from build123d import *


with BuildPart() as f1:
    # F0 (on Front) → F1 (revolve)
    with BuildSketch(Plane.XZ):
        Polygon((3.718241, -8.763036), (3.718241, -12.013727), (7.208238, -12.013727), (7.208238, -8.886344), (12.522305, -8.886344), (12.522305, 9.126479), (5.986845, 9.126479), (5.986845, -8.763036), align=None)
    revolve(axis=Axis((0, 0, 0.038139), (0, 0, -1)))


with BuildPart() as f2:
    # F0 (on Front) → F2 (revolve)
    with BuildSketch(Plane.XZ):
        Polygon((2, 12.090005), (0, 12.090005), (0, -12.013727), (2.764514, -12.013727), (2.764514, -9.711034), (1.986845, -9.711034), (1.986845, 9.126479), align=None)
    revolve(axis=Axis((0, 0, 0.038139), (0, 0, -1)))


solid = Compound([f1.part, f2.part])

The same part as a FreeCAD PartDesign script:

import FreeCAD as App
import Part
import Sketcher

V = App.Vector

doc = App.newDocument("Part")
body = doc.addObject("PartDesign::Body", "Body")

sketch1 = body.newObject("Sketcher::SketchObject", "Sketch")
sketch1.AttachmentSupport = (doc.getObject("XZ_Plane"), [""])
sketch1.MapMode = "FlatFace"
sketch1.addGeometry(Part.LineSegment(V(3.7, -8.8, 0), V(3.7, -12, 0)), False)
sketch1.addGeometry(Part.LineSegment(V(3.7, -12, 0), V(7.2, -12, 0)), False)
sketch1.addGeometry(Part.LineSegment(V(7.2, -12, 0), V(7.2, -8.9, 0)), False)
sketch1.addGeometry(Part.LineSegment(V(7.2, -8.9, 0), V(12.5, -8.9, 0)), False)
sketch1.addGeometry(Part.LineSegment(V(12.5, -8.9, 0), V(12.5, 9.1, 0)), False)
sketch1.addGeometry(Part.LineSegment(V(12.5, 9.1, 0), V(6, 9.1, 0)), False)
sketch1.addGeometry(Part.LineSegment(V(6, 9.1, 0), V(6, -8.8, 0)), False)
sketch1.addGeometry(Part.LineSegment(V(6, -8.8, 0), V(3.7, -8.8, 0)), False)
sketch1.addConstraint(Sketcher.Constraint("Coincident", 0, 2, 1, 1))
sketch1.addConstraint(Sketcher.Constraint("Coincident", 1, 2, 2, 1))
sketch1.addConstraint(Sketcher.Constraint("Coincident", 2, 2, 3, 1))
sketch1.addConstraint(Sketcher.Constraint("Coincident", 3, 2, 4, 1))
sketch1.addConstraint(Sketcher.Constraint("Coincident", 4, 2, 5, 1))
sketch1.addConstraint(Sketcher.Constraint("Coincident", 5, 2, 6, 1))
sketch1.addConstraint(Sketcher.Constraint("Coincident", 6, 2, 7, 1))
sketch1.addConstraint(Sketcher.Constraint("Coincident", 7, 2, 0, 1))
sketch1.addConstraint(Sketcher.Constraint("Vertical", 0))
sketch1.addConstraint(Sketcher.Constraint("Horizontal", 1))
sketch1.addConstraint(Sketcher.Constraint("Vertical", 2))
sketch1.addConstraint(Sketcher.Constraint("Horizontal", 3))
sketch1.addConstraint(Sketcher.Constraint("Vertical", 4))
sketch1.addConstraint(Sketcher.Constraint("Horizontal", 5))
sketch1.addConstraint(Sketcher.Constraint("Vertical", 6))
sketch1.addConstraint(Sketcher.Constraint("Horizontal", 7))
sketch1.addConstraint(Sketcher.Constraint("DistanceX", 5, 2, 5, 1, 6.53546))
sketch1.addConstraint(Sketcher.Constraint("DistanceY", 0, 2, 0, 1, 3.250691))
sketch1.addConstraint(Sketcher.Constraint("DistanceX", 1, 1, 1, 2, 3.489997))
sketch1.addConstraint(Sketcher.Constraint("DistanceX", 3, 1, 3, 2, 5.314067))
sketch1.addConstraint(Sketcher.Constraint("DistanceY", 2, 1, 2, 2, 3.127383))
sketch1.addConstraint(Sketcher.Constraint("DistanceY", 4, 1, 4, 2, 18.012823))
sketch1.addConstraint(Sketcher.Constraint("DistanceX", -1, 1, 0, 2, 3.718241))
sketch1.addConstraint(Sketcher.Constraint("DistanceY", -1, 1, 4, 2, 9.126479))
revolution = body.newObject("PartDesign::Revolution", "Revolution")
revolution.Profile = sketch1
revolution.ReferenceAxis = (sketch1, ["V_Axis"])
revolution.Angle = 360
body2 = doc.addObject("PartDesign::Body", "Body001")

sketch2 = body2.newObject("Sketcher::SketchObject", "Sketch001")
sketch2.AttachmentSupport = (doc.getObject("XZ_Plane001"), [""])
sketch2.MapMode = "FlatFace"
sketch2.addGeometry(Part.LineSegment(V(2, 12.1, 0), V(0, 12.1, 0)), False)
sketch2.addGeometry(Part.LineSegment(V(0, 12.1, 0), V(0, -12, 0)), False)
sketch2.addGeometry(Part.LineSegment(V(0, -12, 0), V(2.8, -12, 0)), False)
sketch2.addGeometry(Part.LineSegment(V(2.8, -12, 0), V(2.8, -9.7, 0)), False)
sketch2.addGeometry(Part.LineSegment(V(2.8, -9.7, 0), V(2, -9.7, 0)), False)
sketch2.addGeometry(Part.LineSegment(V(2, -9.7, 0), V(2, 9.1, 0)), False)
sketch2.addGeometry(Part.LineSegment(V(2, 9.1, 0), V(2, 12.1, 0)), False)
sketch2.addConstraint(Sketcher.Constraint("Coincident", 0, 2, 1, 1))
sketch2.addConstraint(Sketcher.Constraint("Coincident", 1, 2, 2, 1))
sketch2.addConstraint(Sketcher.Constraint("Coincident", 2, 2, 3, 1))
sketch2.addConstraint(Sketcher.Constraint("Coincident", 3, 2, 4, 1))
sketch2.addConstraint(Sketcher.Constraint("Coincident", 4, 2, 5, 1))
sketch2.addConstraint(Sketcher.Constraint("Coincident", 5, 2, 6, 1))
sketch2.addConstraint(Sketcher.Constraint("Coincident", 6, 2, 0, 1))
sketch2.addConstraint(Sketcher.Constraint("Horizontal", 0))
sketch2.addConstraint(Sketcher.Constraint("Vertical", 1))
sketch2.addConstraint(Sketcher.Constraint("Horizontal", 2))
sketch2.addConstraint(Sketcher.Constraint("Vertical", 3))
sketch2.addConstraint(Sketcher.Constraint("Horizontal", 4))
sketch2.addConstraint(Sketcher.Constraint("Vertical", 5))
sketch2.addConstraint(Sketcher.Constraint("PointOnObject", 0, 2, -2))
sketch2.addConstraint(Sketcher.Constraint("DistanceX", 0, 2, 0, 1, 2.0))
sketch2.addConstraint(Sketcher.Constraint("DistanceX", 4, 2, 4, 1, 0.777669))
sketch2.addConstraint(Sketcher.Constraint("DistanceX", 2, 1, 2, 2, 2.764514))
sketch2.addConstraint(Sketcher.Constraint("DistanceY", 1, 2, 1, 1, 24.103732))
sketch2.addConstraint(Sketcher.Constraint("DistanceY", 3, 1, 3, 2, 2.302693))
sketch2.addConstraint(Sketcher.Constraint("DistanceY", 5, 1, 5, 2, 18.837513))
sketch2.addConstraint(Sketcher.Constraint("DistanceY", -1, 1, 5, 2, 9.126479))
revolution2 = body2.newObject("PartDesign::Revolution", "Revolution001")
revolution2.Profile = sketch2
revolution2.ReferenceAxis = (sketch2, ["V_Axis"])
revolution2.Angle = 360

doc.recompute()
